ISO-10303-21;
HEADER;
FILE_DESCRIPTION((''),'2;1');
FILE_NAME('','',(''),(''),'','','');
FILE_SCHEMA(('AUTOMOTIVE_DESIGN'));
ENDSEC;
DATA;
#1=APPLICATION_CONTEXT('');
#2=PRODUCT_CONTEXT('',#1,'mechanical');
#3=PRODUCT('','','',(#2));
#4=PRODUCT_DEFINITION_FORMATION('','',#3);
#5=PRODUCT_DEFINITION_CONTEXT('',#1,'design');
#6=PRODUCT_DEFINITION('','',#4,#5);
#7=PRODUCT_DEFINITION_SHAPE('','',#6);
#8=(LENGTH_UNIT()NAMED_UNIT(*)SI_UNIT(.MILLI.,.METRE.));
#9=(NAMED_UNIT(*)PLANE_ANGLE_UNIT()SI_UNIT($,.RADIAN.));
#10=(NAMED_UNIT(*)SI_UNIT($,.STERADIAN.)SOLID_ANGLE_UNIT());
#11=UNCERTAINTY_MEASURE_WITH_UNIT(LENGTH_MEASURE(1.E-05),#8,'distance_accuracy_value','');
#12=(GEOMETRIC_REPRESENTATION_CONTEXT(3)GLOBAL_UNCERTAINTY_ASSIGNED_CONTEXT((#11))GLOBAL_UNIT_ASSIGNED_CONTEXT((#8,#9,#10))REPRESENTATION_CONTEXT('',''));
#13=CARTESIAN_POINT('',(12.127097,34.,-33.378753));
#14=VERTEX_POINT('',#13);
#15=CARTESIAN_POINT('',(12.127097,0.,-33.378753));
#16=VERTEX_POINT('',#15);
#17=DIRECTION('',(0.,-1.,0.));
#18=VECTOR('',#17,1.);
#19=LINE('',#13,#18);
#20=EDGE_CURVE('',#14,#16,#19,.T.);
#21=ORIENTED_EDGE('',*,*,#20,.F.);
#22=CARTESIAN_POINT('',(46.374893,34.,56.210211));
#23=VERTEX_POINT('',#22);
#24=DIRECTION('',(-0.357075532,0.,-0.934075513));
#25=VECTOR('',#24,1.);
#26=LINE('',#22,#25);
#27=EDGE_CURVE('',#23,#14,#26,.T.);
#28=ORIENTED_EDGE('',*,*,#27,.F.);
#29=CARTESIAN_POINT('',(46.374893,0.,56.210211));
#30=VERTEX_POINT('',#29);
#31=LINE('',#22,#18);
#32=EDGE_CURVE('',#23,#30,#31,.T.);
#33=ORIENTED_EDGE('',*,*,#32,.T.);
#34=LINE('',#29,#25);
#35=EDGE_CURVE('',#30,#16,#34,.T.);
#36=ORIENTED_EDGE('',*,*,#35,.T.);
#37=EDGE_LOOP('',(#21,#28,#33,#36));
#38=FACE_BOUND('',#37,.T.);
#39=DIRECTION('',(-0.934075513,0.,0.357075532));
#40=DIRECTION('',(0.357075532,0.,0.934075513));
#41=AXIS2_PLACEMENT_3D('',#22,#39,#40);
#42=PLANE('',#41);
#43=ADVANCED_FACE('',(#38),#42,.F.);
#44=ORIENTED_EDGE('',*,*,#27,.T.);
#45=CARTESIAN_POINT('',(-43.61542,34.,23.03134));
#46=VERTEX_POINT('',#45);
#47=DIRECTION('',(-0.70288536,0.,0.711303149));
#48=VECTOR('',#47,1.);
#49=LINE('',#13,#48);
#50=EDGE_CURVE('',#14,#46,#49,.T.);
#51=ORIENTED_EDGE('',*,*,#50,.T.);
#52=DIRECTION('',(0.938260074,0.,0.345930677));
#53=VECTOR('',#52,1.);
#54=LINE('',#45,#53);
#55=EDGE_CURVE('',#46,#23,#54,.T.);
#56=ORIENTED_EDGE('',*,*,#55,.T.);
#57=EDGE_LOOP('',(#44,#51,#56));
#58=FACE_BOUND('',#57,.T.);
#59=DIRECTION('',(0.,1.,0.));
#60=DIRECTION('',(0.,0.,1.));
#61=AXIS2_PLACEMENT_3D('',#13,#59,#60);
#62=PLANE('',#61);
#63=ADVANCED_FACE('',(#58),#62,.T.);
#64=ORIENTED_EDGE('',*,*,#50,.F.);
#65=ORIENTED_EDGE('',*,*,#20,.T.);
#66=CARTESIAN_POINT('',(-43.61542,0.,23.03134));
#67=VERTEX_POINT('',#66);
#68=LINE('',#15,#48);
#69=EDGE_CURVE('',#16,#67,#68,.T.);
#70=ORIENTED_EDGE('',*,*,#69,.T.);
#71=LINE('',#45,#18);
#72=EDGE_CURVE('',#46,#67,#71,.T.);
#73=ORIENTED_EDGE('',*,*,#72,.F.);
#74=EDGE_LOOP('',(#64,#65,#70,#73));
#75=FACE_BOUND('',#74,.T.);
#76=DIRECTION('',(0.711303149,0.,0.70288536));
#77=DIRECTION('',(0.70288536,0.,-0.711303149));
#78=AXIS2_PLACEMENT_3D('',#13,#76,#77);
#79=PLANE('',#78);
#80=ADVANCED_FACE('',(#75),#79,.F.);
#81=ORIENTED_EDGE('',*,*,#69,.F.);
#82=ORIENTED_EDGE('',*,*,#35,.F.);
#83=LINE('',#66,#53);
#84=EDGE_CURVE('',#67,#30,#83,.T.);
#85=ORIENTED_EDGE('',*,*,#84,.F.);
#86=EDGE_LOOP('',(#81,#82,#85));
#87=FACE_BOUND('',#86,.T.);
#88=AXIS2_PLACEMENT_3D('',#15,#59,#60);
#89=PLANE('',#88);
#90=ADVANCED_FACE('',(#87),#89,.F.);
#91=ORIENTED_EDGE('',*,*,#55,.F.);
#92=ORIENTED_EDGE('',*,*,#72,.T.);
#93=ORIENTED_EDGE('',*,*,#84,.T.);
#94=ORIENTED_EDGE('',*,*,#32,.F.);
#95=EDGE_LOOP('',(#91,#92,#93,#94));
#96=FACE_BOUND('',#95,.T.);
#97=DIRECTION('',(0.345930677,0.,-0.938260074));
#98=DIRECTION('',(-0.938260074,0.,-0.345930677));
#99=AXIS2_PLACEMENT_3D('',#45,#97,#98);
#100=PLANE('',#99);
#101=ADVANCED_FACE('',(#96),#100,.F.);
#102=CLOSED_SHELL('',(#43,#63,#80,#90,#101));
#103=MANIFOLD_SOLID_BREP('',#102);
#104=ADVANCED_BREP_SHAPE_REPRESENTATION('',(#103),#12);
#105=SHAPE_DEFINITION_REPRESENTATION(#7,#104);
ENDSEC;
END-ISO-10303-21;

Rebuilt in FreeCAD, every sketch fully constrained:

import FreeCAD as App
import Part
import Sketcher
from FreeCAD import Vector
Q = App.Units.Quantity

doc = App.newDocument("Part")
body = doc.addObject("PartDesign::Body", "Body")

# Sketch on XZ plane
sketch1 = body.newObject("Sketcher::SketchObject", "Sketch")
sketch1.AttachmentSupport = (doc.getObject("XZ_Plane"), [""])
sketch1.MapMode = "FlatFace"
sketch1.addGeometry(Part.LineSegment(Vector(12, -33, 0), Vector(-44, 23, 0)), False)
sketch1.addGeometry(Part.LineSegment(Vector(-44, 23, 0), Vector(46, 56, 0)), False)
sketch1.addGeometry(Part.LineSegment(Vector(46, 56, 0), Vector(12, -33, 0)), False)
sketch1.addConstraint(Sketcher.Constraint("Coincident", 0, 2, 1, 1))
sketch1.addConstraint(Sketcher.Constraint("Coincident", 1, 2, 2, 1))
sketch1.addConstraint(Sketcher.Constraint("Coincident", 2, 2, 0, 1))
sketch1.addConstraint(Sketcher.Constraint("Equal", 1, 2))
sketch1.addConstraint(Sketcher.Constraint("DistanceX", 0, 2, -1, 1, Q("43.61542 mm")))
sketch1.addConstraint(Sketcher.Constraint("DistanceY", -1, 1, 0, 2, Q("23.03134 mm")))
sketch1.addConstraint(Sketcher.Constraint("DistanceY", -1, 1, 1, 2, Q("56.210211 mm")))
sketch1.addConstraint(Sketcher.Constraint("Distance", 0, Q("79.305276 mm")))
sketch1.addConstraint(Sketcher.Constraint("Distance", 1, Q("95.911907 mm")))
pad1 = body.newObject("PartDesign::Pad", "Pad")
pad1.Profile = sketch1
pad1.Length = 34
pad1.Reversed = True

doc.recompute()
